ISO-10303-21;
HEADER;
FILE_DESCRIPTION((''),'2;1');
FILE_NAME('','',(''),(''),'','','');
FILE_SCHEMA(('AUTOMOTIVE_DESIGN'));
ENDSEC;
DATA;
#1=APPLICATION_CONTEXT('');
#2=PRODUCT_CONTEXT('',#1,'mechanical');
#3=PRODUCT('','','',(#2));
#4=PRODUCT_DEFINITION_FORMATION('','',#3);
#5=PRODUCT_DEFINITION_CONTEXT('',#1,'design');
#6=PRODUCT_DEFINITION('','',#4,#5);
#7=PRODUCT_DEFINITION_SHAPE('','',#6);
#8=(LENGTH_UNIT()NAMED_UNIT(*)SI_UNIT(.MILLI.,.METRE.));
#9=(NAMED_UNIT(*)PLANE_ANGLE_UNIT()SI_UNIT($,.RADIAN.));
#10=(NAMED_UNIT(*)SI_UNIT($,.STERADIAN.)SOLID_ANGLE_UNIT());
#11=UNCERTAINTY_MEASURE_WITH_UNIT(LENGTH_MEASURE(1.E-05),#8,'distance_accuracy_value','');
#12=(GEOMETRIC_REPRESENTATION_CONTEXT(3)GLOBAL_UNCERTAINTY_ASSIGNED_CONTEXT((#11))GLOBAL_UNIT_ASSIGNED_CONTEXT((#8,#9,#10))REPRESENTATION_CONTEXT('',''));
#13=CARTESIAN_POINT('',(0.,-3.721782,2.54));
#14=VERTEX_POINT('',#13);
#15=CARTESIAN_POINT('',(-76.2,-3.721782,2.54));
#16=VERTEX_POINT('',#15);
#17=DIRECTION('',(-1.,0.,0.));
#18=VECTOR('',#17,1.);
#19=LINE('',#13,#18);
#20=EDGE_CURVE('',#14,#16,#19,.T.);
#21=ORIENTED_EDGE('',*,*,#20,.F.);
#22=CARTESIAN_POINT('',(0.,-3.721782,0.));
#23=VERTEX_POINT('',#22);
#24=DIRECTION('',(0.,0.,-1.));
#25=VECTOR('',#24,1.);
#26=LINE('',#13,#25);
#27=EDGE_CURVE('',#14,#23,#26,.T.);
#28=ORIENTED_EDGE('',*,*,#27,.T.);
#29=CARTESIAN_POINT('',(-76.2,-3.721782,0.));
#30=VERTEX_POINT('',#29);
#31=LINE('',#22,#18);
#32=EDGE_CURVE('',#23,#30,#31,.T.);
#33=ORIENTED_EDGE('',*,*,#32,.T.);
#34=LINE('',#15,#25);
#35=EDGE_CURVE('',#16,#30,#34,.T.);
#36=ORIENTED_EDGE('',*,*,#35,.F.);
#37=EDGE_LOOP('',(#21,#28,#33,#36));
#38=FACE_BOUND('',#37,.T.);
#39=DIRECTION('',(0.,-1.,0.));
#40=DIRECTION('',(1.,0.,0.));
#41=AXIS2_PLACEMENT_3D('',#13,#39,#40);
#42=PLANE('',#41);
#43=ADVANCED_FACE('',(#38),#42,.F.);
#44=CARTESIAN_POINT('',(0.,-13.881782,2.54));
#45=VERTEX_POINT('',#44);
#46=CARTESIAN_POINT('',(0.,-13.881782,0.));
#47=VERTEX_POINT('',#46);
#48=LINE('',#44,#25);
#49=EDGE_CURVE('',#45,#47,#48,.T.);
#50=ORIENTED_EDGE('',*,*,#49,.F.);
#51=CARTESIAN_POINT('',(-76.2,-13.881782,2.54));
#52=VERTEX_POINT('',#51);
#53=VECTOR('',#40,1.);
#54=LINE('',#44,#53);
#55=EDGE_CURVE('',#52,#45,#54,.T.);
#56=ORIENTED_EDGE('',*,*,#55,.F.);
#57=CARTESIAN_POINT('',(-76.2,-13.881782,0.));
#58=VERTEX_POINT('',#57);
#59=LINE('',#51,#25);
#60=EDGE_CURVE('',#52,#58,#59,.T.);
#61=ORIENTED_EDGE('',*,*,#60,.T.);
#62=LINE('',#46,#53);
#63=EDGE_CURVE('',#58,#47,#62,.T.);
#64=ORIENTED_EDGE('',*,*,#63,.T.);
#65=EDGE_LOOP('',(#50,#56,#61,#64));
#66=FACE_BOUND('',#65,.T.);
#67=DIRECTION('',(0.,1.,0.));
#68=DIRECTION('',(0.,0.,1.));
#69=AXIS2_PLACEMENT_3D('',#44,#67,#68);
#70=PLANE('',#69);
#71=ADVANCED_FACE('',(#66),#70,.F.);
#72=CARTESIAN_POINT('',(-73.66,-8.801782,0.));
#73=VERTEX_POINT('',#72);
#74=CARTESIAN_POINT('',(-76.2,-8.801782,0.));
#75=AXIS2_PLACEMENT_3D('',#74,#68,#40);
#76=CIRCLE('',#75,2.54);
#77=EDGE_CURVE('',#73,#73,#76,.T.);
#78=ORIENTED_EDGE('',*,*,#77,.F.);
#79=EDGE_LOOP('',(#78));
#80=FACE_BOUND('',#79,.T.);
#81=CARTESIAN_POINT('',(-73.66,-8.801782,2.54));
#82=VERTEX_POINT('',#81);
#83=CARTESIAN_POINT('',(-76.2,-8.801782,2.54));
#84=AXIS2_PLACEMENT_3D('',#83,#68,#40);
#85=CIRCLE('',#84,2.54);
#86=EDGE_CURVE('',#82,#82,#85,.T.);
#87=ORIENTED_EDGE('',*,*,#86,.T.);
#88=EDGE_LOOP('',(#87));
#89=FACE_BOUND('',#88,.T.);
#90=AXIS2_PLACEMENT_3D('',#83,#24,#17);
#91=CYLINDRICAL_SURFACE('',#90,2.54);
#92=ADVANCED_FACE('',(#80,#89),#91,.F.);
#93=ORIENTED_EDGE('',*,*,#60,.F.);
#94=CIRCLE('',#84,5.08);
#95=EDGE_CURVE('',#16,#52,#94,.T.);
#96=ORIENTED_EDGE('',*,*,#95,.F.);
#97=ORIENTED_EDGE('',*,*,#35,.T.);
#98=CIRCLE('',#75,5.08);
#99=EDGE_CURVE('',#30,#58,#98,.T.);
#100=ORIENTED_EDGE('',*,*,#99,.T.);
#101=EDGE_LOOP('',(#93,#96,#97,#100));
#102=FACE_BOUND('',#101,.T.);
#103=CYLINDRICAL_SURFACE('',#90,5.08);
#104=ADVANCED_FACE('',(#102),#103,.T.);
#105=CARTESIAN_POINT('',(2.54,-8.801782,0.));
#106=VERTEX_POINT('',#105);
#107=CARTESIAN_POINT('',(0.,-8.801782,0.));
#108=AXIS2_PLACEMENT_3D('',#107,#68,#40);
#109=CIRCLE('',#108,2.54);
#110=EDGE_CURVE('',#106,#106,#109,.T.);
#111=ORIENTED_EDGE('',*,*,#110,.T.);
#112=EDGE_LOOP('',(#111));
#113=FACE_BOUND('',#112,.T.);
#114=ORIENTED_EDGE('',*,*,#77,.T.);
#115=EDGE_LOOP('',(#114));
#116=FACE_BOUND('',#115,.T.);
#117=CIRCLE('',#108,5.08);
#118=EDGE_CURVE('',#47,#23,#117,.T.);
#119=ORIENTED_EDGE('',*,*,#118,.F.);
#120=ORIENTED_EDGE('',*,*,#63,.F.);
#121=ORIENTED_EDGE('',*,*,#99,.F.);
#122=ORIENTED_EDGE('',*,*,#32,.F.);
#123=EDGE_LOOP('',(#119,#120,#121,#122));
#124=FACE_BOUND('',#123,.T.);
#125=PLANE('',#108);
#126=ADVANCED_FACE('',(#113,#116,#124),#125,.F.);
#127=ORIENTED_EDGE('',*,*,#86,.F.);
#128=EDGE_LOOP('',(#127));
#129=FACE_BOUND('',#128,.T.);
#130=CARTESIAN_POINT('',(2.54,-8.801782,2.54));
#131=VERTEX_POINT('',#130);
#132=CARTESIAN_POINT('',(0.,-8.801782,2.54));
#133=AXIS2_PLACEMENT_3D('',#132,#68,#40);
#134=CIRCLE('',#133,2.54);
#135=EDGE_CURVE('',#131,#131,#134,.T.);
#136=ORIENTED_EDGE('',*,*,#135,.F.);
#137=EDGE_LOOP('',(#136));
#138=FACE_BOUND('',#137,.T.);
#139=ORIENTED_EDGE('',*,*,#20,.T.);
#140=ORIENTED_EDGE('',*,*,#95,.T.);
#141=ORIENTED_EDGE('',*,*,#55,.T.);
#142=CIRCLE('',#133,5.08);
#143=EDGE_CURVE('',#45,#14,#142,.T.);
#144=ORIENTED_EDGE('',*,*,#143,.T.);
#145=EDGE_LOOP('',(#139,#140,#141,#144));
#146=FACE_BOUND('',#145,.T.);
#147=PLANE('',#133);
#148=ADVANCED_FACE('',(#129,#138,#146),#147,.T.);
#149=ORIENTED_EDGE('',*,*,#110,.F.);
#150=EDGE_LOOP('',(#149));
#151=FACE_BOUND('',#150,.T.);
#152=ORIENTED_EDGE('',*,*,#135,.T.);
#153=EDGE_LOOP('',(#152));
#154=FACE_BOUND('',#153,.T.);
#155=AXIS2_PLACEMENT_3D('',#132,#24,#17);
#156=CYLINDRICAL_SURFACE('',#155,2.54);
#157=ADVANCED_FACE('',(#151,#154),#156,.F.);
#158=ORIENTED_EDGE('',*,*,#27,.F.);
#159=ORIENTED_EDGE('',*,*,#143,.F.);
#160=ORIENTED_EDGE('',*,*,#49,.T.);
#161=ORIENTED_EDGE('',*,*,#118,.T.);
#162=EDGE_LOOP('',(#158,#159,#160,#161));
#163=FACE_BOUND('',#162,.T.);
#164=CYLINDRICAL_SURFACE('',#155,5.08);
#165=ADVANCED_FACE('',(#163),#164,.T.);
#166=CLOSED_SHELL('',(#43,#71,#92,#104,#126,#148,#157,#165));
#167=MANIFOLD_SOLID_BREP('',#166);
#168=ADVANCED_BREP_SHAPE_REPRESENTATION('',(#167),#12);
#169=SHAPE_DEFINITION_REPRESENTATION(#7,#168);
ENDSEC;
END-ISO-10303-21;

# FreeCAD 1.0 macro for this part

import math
import FreeCAD as App
import Part
import Sketcher

V = App.Vector
Q = App.Units.Quantity

doc = App.newDocument("Part")
body = doc.addObject("PartDesign::Body", "Body")

sketch1 = body.newObject("Sketcher::SketchObject", "Sketch")
sketch1.AttachmentSupport = (doc.getObject("XY_Plane"), [""])
sketch1.MapMode = "FlatFace"
sketch1.addGeometry([
    Part.LineSegment(V(-76.2, -13.9, 0), V(0, -13.9, 0)),
    Part.ArcOfCircle(Part.Circle(V(0, -8.8, 0), V(0, 0, 1), 5.1), math.radians(-90), math.radians(90)),
    Part.LineSegment(V(0, -3.7, 0), V(-76.2, -3.7, 0)),
    Part.ArcOfCircle(Part.Circle(V(-76.2, -8.8, 0), V(0, 0, 1), 5.1), math.radians(90), math.radians(270)),
    Part.Circle(V(0, -8.8, 0), V(0, 0, 1), 2.5),
    Part.Circle(V(-76.2, -8.8, 0), V(0, 0, 1), 2.5),
], False)
sketch1.addConstraint([
    Sketcher.Constraint("Tangent", 0, 2, 1, 1),
    Sketcher.Constraint("Tangent", 1, 2, 2, 1),
    Sketcher.Constraint("Tangent", 2, 2, 3, 1),
    Sketcher.Constraint("Tangent", 3, 2, 0, 1),
    Sketcher.Constraint("Horizontal", 0),
    Sketcher.Constraint("Horizontal", 2),
    Sketcher.Constraint("Coincident", 4, 3, 1, 3),
    Sketcher.Constraint("Coincident", 5, 3, 3, 3),
    Sketcher.Constraint("Equal", 4, 5),
    Sketcher.Constraint("PointOnObject", 1, 3, -2),
    Sketcher.Constraint("Diameter", 4, Q("0.2 in")),
    Sketcher.Constraint("Radius", 1, Q("0.2 in")),
    Sketcher.Constraint("DistanceX", 0, 1, 0, 2, Q("3 in")),
    Sketcher.Constraint("DistanceY", 1, 3, -1, 1, 8.801782),
])
pad1 = body.newObject("PartDesign::Pad", "Pad")
pad1.Profile = sketch1
pad1.Length = Q("0.1 in")

doc.recompute()
